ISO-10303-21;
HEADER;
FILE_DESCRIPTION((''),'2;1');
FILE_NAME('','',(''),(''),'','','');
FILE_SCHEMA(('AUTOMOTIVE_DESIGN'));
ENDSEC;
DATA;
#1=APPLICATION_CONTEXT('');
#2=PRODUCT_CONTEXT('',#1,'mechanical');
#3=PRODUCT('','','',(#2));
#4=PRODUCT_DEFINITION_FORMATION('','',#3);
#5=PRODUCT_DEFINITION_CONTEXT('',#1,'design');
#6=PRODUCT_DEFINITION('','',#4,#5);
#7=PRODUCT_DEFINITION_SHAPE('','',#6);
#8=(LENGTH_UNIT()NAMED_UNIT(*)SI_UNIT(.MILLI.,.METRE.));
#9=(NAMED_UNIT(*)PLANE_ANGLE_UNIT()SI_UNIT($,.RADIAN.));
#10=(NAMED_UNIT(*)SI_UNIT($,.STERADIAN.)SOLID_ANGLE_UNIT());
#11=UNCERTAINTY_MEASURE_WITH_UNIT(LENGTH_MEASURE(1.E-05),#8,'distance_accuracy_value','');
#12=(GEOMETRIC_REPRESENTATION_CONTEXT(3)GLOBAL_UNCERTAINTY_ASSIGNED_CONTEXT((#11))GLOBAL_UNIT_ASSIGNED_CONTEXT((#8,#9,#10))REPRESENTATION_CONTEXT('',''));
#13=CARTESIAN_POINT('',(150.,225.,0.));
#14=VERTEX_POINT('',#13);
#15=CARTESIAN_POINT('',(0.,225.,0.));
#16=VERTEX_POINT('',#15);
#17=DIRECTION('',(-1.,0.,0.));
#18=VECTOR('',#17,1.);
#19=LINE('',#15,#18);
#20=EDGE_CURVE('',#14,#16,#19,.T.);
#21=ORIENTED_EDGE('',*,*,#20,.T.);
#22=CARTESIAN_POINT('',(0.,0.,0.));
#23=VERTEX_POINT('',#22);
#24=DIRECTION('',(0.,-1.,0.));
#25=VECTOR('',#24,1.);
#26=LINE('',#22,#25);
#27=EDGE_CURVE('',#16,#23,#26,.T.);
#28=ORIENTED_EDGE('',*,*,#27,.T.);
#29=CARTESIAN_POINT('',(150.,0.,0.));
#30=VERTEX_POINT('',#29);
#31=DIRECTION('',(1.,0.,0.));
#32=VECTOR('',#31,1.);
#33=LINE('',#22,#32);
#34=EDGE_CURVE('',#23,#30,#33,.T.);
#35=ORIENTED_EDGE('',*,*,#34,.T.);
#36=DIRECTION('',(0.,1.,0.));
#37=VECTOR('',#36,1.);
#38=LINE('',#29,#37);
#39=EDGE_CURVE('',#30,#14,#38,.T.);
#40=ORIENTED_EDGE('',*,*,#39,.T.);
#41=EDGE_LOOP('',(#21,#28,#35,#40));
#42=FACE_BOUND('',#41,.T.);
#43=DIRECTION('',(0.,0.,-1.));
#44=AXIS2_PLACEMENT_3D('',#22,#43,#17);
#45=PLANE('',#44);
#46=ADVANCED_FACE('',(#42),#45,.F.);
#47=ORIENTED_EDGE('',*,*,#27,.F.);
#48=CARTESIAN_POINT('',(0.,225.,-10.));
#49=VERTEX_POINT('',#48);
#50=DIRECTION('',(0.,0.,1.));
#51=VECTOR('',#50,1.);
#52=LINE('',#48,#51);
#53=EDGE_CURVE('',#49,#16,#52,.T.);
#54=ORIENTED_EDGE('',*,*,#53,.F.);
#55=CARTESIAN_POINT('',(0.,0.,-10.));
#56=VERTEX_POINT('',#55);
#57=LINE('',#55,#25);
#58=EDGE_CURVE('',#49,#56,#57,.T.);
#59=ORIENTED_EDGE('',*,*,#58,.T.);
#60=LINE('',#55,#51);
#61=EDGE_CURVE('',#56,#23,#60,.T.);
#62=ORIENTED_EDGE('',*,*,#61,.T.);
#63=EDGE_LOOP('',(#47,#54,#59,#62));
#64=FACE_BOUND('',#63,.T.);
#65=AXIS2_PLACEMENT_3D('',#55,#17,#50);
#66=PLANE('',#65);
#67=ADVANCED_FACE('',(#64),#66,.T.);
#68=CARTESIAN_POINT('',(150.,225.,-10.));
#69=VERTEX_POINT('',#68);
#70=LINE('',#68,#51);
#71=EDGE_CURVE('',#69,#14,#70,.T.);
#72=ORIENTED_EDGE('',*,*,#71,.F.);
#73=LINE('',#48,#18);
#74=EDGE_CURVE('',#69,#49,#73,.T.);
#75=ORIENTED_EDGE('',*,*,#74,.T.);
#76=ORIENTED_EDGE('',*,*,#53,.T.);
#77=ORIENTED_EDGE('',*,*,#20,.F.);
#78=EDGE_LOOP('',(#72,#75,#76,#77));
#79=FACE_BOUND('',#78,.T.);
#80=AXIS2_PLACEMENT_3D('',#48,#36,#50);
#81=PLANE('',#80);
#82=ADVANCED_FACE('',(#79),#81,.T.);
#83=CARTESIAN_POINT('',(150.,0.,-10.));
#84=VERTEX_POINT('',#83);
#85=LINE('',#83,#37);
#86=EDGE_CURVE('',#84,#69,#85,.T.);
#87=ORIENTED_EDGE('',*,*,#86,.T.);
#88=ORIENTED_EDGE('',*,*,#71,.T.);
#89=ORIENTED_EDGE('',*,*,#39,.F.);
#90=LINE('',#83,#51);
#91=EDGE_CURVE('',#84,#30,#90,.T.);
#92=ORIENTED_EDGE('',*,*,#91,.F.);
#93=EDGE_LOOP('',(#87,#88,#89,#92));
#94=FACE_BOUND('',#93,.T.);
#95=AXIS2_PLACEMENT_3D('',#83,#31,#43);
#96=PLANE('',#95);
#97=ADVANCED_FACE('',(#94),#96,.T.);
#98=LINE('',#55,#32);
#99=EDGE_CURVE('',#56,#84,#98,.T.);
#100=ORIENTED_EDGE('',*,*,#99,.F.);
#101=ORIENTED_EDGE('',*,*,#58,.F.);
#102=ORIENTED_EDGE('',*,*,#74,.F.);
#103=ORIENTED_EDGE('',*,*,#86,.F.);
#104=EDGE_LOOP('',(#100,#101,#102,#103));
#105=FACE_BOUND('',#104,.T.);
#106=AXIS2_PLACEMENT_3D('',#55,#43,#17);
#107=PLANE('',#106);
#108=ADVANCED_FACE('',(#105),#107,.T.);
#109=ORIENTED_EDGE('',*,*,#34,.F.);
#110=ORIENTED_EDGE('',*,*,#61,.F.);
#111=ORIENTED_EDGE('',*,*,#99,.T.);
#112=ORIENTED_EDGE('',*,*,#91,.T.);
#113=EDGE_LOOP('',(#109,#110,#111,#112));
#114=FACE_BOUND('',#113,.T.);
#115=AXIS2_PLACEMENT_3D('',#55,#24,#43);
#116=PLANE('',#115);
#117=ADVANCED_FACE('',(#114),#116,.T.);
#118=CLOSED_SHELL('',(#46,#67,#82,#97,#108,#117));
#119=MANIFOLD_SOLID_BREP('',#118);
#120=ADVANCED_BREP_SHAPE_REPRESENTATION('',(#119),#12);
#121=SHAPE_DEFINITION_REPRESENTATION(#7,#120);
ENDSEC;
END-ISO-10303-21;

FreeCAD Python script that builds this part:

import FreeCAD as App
import Part
import Sketcher


def add_polygon(sketch, points):
    """Adds a closed chain of lines whose ends are joined by coincident constraints."""
    first, n = sketch.GeometryCount, len(points)
    for a, b in zip(points, points[1:] + points[:1]):
        sketch.addGeometry(Part.LineSegment(App.Vector(*a, 0), App.Vector(*b, 0)), False)
    for i in range(n):
        sketch.addConstraint(Sketcher.Constraint("Coincident", first + i, 2, first + (i + 1) % n, 1))

doc = App.newDocument("Part")
body = doc.addObject("PartDesign::Body", "Body")

# Sketch on XY plane
sketch1 = body.newObject("Sketcher::SketchObject", "Sketch")
sketch1.AttachmentSupport = (doc.getObject("XY_Plane"), [""])
sketch1.MapMode = "FlatFace"
add_polygon(sketch1, [(0, 225), (0, 0), (150, 0), (150, 225)])  # lines 0-3
sketch1.addConstraint(Sketcher.Constraint("Vertical", 0))
sketch1.addConstraint(Sketcher.Constraint("Horizontal", 1))
sketch1.addConstraint(Sketcher.Constraint("Vertical", 2))
sketch1.addConstraint(Sketcher.Constraint("Horizontal", 3))
sketch1.addConstraint(Sketcher.Constraint("Coincident", 0, 2, -1, 1))
sketch1.addConstraint(Sketcher.Constraint("DistanceX", 1, 1, 1, 2, 150.0))
sketch1.addConstraint(Sketcher.Constraint("DistanceY", 0, 2, 0, 1, 225.0))
pad1 = body.newObject("PartDesign::Pad", "Pad")
pad1.Profile = sketch1
pad1.Length = 10
pad1.Reversed = True

doc.recompute()
